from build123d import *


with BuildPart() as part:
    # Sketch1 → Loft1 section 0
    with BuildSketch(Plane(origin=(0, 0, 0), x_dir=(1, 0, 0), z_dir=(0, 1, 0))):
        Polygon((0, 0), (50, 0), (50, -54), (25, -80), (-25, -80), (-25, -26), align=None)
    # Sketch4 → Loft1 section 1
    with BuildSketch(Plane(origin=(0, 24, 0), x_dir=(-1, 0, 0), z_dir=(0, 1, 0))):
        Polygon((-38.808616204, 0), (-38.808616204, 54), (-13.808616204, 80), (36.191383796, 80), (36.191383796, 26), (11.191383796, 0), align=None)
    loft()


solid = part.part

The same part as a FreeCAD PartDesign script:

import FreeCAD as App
import Part
import Sketcher

doc = App.newDocument("Part")
body = doc.addObject("PartDesign::Body", "Body")

sketch1 = doc.addObject("Sketcher::SketchObject", "Sketch")
body.addObject(sketch1)
sketch1.AttachmentSupport = (doc.XZ_Plane, [""])
sketch1.MapMode = "FlatFace"
sketch1.addGeometry([
    Part.LineSegment(App.Vector(50, 0, 0), App.Vector(0, 0, 0)),
    Part.LineSegment(App.Vector(0, 0, 0), App.Vector(-25, 26, 0)),
    Part.LineSegment(App.Vector(-25, 26, 0), App.Vector(-25, 80, 0)),
    Part.LineSegment(App.Vector(-25, 80, 0), App.Vector(25, 80, 0)),
    Part.LineSegment(App.Vector(25, 80, 0), App.Vector(50, 54, 0)),
    Part.LineSegment(App.Vector(50, 54, 0), App.Vector(50, 0, 0)),
], False)
sketch1.addConstraint([
    Sketcher.Constraint("Coincident", 0, 2, 1, 1),
    Sketcher.Constraint("Coincident", 1, 2, 2, 1),
    Sketcher.Constraint("Coincident", 2, 2, 3, 1),
    Sketcher.Constraint("Coincident", 3, 2, 4, 1),
    Sketcher.Constraint("Coincident", 4, 2, 5, 1),
    Sketcher.Constraint("Coincident", 5, 2, 0, 1),
    Sketcher.Constraint("Horizontal", 0),
    Sketcher.Constraint("Vertical", 2),
    Sketcher.Constraint("Horizontal", 3),
    Sketcher.Constraint("Vertical", 5),
    Sketcher.Constraint("Coincident", 0, 2, -1, 1),
    Sketcher.Constraint("Parallel", 1, 4),
    Sketcher.Constraint("Equal", 0, 3),
    Sketcher.Constraint("DistanceX", 0, 2, 0, 1, 50.0),
    Sketcher.Constraint("DistanceY", 2, 1, 2, 2, 54.0),
    Sketcher.Constraint("DistanceX", 1, 2, -1, 1, 25.0),
    Sketcher.Constraint("DistanceY", -1, 1, 1, 2, 26.0),
])

sketch2 = doc.addObject("Sketcher::SketchObject", "Sketch001")
body.addObject(sketch2)
sketch2.AttachmentSupport = (doc.XZ_Plane, [""])
sketch2.MapMode = "FlatFace"
sketch2.AttachmentOffset = App.Placement(App.Vector(0, 0, -24), App.Rotation())
sketch2.addGeometry([
    Part.LineSegment(App.Vector(38.808616, 54, 0), App.Vector(38.808616, 0, 0)),
    Part.LineSegment(App.Vector(38.808616, 0, 0), App.Vector(-11.191384, 0, 0)),
    Part.LineSegment(App.Vector(-11.191384, 0, 0), App.Vector(-36.191384, 26, 0)),
    Part.LineSegment(App.Vector(-36.191384, 26, 0), App.Vector(-36.191384, 80, 0)),
    Part.LineSegment(App.Vector(-36.191384, 80, 0), App.Vector(13.808616, 80, 0)),
    Part.LineSegment(App.Vector(13.808616, 80, 0), App.Vector(38.808616, 54, 0)),
], False)
sketch2.addConstraint([
    Sketcher.Constraint("Coincident", 0, 2, 1, 1),
    Sketcher.Constraint("Coincident", 1, 2, 2, 1),
    Sketcher.Constraint("Coincident", 2, 2, 3, 1),
    Sketcher.Constraint("Coincident", 3, 2, 4, 1),
    Sketcher.Constraint("Coincident", 4, 2, 5, 1),
    Sketcher.Constraint("Coincident", 5, 2, 0, 1),
    Sketcher.Constraint("Vertical", 0),
    Sketcher.Constraint("Horizontal", 1),
    Sketcher.Constraint("Vertical", 3),
    Sketcher.Constraint("Horizontal", 4),
    Sketcher.Constraint("PointOnObject", 0, 2, -1),
    Sketcher.Constraint("Parallel", 2, 5),
    Sketcher.Constraint("Equal", 1, 4),
    Sketcher.Constraint("DistanceX", 1, 2, 1, 1, 50.0),
    Sketcher.Constraint("DistanceY", 0, 2, 0, 1, 54.0),
    Sketcher.Constraint("DistanceY", -1, 1, 2, 2, 26.0),
    Sketcher.Constraint("DistanceX", 2, 2, 1, 2, 25.0),
    Sketcher.Constraint("DistanceX", -1, 1, 0, 2, 38.808616),
])

additiveloft = doc.addObject("PartDesign::AdditiveLoft", "AdditiveLoft")
body.addObject(additiveloft)
additiveloft.Profile = sketch1
additiveloft.Sections = [sketch2]

doc.recompute()
